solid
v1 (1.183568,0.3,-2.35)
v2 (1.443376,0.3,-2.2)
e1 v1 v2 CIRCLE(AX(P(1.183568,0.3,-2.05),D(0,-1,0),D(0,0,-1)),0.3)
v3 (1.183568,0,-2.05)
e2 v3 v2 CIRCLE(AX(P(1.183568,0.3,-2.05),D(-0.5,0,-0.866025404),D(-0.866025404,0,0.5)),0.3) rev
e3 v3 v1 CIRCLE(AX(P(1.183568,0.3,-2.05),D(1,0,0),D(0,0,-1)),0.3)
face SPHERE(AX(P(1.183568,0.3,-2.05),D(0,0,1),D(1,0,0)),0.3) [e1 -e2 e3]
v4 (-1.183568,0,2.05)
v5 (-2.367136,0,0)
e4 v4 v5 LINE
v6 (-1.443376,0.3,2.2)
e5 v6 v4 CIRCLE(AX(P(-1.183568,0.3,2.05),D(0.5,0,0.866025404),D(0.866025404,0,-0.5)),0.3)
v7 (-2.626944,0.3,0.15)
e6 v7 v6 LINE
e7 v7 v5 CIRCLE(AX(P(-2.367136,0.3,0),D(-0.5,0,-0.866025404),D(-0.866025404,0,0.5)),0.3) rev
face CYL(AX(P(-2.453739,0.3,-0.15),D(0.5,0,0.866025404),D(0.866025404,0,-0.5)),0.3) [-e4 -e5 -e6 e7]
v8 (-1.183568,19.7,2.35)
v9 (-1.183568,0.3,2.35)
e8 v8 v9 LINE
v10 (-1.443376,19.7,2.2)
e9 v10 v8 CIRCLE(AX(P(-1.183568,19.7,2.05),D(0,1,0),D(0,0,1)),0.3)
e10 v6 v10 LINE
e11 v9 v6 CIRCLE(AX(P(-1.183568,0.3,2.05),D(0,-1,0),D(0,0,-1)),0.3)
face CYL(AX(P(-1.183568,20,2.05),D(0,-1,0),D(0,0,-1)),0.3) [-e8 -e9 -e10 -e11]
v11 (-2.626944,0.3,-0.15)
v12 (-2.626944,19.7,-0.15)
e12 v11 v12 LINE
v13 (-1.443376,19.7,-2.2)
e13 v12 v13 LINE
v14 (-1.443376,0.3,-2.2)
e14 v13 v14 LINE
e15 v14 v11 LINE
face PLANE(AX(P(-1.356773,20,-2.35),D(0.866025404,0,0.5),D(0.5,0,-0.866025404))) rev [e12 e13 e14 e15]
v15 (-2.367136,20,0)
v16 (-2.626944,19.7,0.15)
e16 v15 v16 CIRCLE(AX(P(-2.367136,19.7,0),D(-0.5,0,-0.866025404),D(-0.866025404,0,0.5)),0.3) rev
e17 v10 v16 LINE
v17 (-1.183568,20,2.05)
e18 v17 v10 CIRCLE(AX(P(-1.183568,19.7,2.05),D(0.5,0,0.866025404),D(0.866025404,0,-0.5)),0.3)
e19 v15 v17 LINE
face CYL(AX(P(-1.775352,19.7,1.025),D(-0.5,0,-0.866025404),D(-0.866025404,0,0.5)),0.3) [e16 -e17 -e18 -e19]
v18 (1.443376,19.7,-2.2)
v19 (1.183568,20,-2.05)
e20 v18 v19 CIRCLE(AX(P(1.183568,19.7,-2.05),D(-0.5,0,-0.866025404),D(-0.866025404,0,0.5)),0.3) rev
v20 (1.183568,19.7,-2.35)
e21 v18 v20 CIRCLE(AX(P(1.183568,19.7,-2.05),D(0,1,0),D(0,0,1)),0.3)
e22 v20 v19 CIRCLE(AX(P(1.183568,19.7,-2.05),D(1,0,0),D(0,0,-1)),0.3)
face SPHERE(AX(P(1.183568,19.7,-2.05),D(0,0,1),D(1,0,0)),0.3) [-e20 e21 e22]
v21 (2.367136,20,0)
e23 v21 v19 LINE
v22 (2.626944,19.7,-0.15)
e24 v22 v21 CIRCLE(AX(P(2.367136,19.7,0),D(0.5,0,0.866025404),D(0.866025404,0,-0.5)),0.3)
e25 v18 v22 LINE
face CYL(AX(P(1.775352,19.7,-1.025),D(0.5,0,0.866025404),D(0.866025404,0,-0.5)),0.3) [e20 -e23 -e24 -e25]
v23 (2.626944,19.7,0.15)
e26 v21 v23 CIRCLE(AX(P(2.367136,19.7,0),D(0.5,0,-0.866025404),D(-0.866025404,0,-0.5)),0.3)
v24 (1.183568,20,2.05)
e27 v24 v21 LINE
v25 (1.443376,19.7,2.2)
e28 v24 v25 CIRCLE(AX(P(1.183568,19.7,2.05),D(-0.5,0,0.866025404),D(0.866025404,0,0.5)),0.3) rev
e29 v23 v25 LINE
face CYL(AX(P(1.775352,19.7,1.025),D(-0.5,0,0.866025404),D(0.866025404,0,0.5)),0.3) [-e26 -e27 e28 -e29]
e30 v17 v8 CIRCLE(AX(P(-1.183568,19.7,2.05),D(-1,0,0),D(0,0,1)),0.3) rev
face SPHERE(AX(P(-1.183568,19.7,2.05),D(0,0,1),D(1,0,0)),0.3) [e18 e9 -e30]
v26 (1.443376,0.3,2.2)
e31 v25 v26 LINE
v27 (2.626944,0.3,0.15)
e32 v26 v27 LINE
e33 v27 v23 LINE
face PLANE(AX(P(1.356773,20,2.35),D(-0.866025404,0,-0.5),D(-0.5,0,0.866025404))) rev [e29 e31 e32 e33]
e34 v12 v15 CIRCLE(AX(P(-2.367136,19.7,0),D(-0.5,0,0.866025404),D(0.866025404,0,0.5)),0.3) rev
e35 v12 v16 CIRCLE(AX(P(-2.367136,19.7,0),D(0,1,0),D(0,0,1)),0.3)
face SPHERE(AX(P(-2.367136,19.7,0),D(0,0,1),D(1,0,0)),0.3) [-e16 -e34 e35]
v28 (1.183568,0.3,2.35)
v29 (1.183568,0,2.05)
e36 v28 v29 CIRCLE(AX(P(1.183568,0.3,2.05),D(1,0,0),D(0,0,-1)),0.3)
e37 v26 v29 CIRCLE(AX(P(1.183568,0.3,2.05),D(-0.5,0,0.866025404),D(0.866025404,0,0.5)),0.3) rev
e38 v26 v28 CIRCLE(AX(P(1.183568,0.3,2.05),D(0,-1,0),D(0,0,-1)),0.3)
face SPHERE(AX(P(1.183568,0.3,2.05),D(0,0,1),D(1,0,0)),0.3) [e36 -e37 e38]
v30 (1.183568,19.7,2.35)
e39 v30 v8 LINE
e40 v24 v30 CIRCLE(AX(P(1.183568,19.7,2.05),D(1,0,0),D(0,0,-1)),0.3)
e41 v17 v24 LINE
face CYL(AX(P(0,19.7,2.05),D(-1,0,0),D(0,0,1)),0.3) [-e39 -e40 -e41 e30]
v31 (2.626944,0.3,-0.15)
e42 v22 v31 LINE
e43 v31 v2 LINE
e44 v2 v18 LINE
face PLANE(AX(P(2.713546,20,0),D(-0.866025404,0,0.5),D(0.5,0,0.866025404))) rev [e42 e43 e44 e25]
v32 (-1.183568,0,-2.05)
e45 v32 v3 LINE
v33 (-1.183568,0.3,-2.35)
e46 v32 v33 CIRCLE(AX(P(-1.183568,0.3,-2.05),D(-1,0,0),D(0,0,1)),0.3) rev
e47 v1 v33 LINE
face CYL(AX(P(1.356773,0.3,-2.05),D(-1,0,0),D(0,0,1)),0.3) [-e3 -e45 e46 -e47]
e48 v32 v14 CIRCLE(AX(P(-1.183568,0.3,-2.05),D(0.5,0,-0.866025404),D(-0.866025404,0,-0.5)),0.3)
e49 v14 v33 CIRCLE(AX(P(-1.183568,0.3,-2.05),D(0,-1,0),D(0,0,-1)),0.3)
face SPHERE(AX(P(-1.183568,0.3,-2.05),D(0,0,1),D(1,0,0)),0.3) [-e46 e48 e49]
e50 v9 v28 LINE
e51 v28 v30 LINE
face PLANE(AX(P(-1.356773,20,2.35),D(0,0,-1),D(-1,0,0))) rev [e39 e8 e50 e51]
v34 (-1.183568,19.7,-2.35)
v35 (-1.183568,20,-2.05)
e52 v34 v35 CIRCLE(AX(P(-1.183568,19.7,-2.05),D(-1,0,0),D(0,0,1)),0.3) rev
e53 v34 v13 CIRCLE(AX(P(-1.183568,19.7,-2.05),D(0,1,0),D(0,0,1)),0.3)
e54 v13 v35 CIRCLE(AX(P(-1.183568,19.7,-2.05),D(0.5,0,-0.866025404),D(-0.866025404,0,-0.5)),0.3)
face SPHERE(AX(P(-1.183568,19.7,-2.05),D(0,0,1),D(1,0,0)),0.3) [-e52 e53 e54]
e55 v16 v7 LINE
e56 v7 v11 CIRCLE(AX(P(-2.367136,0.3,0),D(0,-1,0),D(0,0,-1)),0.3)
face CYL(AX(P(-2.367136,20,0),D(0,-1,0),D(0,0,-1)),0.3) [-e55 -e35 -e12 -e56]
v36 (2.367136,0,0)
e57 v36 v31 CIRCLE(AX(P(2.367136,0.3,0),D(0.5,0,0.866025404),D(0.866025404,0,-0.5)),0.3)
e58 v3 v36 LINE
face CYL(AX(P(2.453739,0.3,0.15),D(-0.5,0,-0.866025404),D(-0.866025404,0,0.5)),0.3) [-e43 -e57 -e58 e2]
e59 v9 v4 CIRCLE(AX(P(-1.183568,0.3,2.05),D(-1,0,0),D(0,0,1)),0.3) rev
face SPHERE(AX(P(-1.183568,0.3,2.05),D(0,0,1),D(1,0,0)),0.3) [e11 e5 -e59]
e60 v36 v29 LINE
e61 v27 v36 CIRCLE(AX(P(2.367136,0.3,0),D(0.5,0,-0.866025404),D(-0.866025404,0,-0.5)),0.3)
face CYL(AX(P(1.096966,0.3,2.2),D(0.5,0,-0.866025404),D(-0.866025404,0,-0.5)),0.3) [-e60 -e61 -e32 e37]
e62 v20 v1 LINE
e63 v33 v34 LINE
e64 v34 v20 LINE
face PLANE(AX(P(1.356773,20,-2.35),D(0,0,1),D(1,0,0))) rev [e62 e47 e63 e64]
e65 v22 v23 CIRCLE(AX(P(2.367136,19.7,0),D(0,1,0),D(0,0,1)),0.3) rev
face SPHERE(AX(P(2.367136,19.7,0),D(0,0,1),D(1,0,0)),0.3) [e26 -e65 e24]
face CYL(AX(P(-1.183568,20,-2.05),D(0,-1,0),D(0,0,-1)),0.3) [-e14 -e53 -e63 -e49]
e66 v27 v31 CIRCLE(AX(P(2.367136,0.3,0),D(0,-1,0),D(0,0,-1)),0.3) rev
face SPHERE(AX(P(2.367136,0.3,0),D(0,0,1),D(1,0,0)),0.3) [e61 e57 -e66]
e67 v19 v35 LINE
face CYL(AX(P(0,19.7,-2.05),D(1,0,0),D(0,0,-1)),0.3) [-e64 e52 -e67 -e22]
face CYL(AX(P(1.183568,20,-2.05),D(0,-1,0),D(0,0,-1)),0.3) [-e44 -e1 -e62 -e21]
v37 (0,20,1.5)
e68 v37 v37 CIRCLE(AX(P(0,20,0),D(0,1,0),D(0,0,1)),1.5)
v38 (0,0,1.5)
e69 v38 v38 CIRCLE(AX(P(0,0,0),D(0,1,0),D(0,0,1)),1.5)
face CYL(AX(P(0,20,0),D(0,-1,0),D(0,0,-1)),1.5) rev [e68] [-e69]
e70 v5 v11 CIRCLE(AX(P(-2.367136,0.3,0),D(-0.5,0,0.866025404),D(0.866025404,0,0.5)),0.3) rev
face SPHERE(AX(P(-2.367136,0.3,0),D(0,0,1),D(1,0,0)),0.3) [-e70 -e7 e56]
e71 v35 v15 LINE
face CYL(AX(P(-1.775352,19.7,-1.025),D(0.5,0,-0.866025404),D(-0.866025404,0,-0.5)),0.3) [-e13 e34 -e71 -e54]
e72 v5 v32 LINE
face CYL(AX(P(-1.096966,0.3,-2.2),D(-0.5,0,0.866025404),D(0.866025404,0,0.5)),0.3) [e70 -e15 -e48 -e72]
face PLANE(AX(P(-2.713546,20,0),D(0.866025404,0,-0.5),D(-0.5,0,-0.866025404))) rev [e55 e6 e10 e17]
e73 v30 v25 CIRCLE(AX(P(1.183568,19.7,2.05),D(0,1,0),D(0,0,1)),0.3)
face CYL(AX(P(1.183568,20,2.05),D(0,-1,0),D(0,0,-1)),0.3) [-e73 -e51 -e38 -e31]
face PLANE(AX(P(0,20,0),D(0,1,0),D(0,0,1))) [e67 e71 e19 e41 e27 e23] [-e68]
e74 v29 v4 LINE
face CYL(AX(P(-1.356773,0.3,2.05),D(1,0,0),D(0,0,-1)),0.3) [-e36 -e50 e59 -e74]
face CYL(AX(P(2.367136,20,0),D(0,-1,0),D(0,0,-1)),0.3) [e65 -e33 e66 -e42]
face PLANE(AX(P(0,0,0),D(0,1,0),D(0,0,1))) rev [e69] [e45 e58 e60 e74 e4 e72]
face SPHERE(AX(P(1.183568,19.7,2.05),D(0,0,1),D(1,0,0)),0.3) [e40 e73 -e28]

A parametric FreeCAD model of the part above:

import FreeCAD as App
import Part
import Sketcher
from FreeCAD import Vector
Q = App.Units.Quantity


def edges_at(feature, points):
    """Names of the edges that pass closest to the given points."""
    edges = feature.Shape.Edges
    near = lambda p: min(range(len(edges)), key=lambda i: edges[i].distToShape(Part.Vertex(*p))[0])
    return sorted({f"Edge{near(p) + 1}" for p in points})


def add_polygon(sketch, points):
    """Adds a closed chain of lines whose ends are joined by coincident constraints."""
    first, n = sketch.GeometryCount, len(points)
    for a, b in zip(points, points[1:] + points[:1]):
        sketch.addGeometry(Part.LineSegment(App.Vector(*a, 0), App.Vector(*b, 0)), False)
    for i in range(n):
        sketch.addConstraint(Sketcher.Constraint("Coincident", first + i, 2, first + (i + 1) % n, 1))

doc = App.newDocument("Part")
body = doc.addObject("PartDesign::Body", "Body")

# Sketch on XZ plane
sketch1 = body.newObject("Sketcher::SketchObject", "Sketch")
sketch1.AttachmentSupport = (doc.getObject("XZ_Plane"), [""])
sketch1.MapMode = "FlatFace"
add_polygon(sketch1, [(2.7, 0), (1.4, -2.4), (-1.4, -2.4), (-2.7, 0), (-1.4, 2.4), (1.4, 2.4)])  # lines 0-5
sketch1.addGeometry(Part.Circle(Vector(0, 0, 0), Vector(0, 0, 1), 1.5), False)  # 6
sketch1.addConstraint([
    Sketcher.Constraint("Horizontal", 1),
    Sketcher.Constraint("Horizontal", 4),
    Sketcher.Constraint("Coincident", 6, 3, -1, 1),
    Sketcher.Constraint("Symmetric", 0, 2, 3, 2, -1, 1),
    Sketcher.Constraint("Symmetric", 2, 2, 5, 2, -1, 1),
    Sketcher.Constraint("PointOnObject", 2, 2, -1),
    Sketcher.Constraint("Parallel", 2, 5),
    Sketcher.Constraint("Vertical", 1, 2, 3, 2),
    Sketcher.Constraint("Diameter", 6, 3.0),
    Sketcher.Constraint("Angle", 0, Q("-120 deg")),
    Sketcher.Constraint("DistanceY", 1, 2, 3, 2, 4.7),
    Sketcher.Constraint("DistanceX", 1, 2, 1, 1, 2.713546),
])
pad1 = body.newObject("PartDesign::Pad", "Pad")
pad1.Profile = sketch1
pad1.Length = 20
pad1.Reversed = True
doc.recompute()

fillet = body.newObject("PartDesign::Fillet", "Fillet")
fillet.Base = (pad1, edges_at(pad1, [
    (0, 20, -2.35),
    (1.357, 10, 2.35),
    (-1.357, 10, 2.35),
    (-2.714, 10, 0),
    (-1.357, 10, -2.35),
    (1.357, 10, -2.35),
    (2.714, 10, 0),
    (-2.035, 20, -1.175),
    (-2.035, 20, 1.175),
    (0, 20, 2.35),
    (2.035, 20, 1.175),
    (0, 0, 2.35),
    (-2.035, 0, 1.175),
    (-2.035, 0, -1.175),
    (2.035, 20, -1.175),
    (0, 0, -2.35),
    (2.035, 0, -1.175),
    (2.035, 0, 1.175),
]))
fillet.Radius = 0.3

doc.recompute()
